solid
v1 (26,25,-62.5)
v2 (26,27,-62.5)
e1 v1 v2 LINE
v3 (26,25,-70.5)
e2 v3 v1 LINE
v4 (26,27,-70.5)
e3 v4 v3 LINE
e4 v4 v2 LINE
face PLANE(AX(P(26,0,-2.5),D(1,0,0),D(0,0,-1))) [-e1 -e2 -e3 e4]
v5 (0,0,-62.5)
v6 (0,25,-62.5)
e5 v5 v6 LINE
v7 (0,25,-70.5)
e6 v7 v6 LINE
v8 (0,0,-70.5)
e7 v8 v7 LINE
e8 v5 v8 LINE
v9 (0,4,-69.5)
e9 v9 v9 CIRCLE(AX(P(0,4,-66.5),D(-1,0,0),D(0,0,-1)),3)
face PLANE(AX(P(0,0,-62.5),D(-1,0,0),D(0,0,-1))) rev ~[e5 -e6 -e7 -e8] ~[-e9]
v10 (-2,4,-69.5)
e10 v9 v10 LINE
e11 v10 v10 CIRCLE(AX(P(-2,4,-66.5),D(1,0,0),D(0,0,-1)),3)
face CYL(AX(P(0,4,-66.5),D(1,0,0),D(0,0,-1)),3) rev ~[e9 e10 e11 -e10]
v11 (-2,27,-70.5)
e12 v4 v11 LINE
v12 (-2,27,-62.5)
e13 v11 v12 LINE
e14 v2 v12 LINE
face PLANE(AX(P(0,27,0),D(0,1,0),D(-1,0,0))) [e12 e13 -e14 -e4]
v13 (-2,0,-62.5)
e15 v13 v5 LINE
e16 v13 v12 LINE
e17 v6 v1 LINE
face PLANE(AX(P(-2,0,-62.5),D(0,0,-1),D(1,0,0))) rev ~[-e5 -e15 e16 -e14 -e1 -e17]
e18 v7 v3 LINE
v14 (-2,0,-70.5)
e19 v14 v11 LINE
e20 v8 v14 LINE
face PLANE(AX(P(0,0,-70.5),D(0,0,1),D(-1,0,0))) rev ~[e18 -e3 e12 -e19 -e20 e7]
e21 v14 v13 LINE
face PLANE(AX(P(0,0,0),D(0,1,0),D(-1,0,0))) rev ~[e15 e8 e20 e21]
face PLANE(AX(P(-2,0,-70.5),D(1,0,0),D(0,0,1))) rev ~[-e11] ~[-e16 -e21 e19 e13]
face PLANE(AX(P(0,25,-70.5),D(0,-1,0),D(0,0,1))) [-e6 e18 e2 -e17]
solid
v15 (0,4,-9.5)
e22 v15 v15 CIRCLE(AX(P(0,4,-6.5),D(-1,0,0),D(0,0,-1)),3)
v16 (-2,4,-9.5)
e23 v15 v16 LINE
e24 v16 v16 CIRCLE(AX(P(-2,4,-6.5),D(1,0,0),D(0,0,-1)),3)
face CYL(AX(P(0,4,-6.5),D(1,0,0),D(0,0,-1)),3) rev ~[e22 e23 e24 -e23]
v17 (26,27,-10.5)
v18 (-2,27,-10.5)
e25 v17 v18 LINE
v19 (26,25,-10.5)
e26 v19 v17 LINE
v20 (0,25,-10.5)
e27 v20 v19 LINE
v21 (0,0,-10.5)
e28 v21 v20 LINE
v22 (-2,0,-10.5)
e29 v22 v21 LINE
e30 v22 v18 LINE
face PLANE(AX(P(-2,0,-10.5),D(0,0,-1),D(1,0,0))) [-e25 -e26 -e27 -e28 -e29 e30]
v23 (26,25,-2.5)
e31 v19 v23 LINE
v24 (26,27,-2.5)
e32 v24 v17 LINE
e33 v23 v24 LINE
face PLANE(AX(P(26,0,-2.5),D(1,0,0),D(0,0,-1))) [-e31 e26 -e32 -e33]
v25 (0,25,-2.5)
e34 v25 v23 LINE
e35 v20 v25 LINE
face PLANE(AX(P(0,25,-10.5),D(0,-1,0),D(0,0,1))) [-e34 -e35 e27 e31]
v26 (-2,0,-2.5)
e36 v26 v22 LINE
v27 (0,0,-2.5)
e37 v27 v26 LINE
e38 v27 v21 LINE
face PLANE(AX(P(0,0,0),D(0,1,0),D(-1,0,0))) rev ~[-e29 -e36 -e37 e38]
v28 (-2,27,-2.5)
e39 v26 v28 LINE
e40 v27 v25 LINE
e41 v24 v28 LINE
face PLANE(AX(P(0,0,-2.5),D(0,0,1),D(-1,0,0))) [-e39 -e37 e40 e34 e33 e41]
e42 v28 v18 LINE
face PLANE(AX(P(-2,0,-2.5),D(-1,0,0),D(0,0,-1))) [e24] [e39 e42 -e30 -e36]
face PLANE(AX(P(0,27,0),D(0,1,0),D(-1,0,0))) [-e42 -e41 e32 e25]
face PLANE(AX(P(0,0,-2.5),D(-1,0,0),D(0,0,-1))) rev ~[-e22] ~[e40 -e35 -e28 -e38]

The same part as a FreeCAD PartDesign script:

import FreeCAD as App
import Part
import Sketcher


def add_polygon(sketch, points):
    """Adds a closed chain of lines whose ends are joined by coincident constraints."""
    first, n = sketch.GeometryCount, len(points)
    for a, b in zip(points, points[1:] + points[:1]):
        sketch.addGeometry(Part.LineSegment(App.Vector(*a, 0), App.Vector(*b, 0)), False)
    for i in range(n):
        sketch.addConstraint(Sketcher.Constraint("Coincident", first + i, 2, first + (i + 1) % n, 1))

doc = App.newDocument("Part")
params = doc.addObject("Spreadsheet::Sheet", "Params")
for row, (alias, value) in enumerate([
    ("sketch1_width", "2 mm"),
    ("sketch1_height", "8 mm"),
    ("pad1_length", "27 mm"),
    ("sketch2_width", "2 mm"),
    ("sketch2_height", "8 mm"),
    ("pad2_length", "26 mm"),
    ("sketch3_diameter", "6 mm"),
    ("pocket1_length", "2 mm"),
], start=1):
    params.set(f"A{row}", alias)
    params.set(f"B{row}", "=" + value)
    params.setAlias(f"B{row}", alias)

body = doc.addObject("PartDesign::Body", "Body")
body.AllowCompound = True

sketch1 = body.newObject("Sketcher::SketchObject", "Sketch")
sketch1.AttachmentSupport = (doc.getObject("XZ_Plane"), [""])
sketch1.MapMode = "FlatFace"
add_polygon(sketch1, [(-2, -2.5), (0, -2.5), (0, -10.5), (-2, -10.5)])
add_polygon(sketch1, [(-2, -62.5), (0, -62.5), (0, -70.5), (-2, -70.5)])
sketch1.addConstraint([
    Sketcher.Constraint("Horizontal", 0),
    Sketcher.Constraint("Vertical", 1),
    Sketcher.Constraint("Horizontal", 2),
    Sketcher.Constraint("Vertical", 3),
    Sketcher.Constraint("Horizontal", 4),
    Sketcher.Constraint("Vertical", 5),
    Sketcher.Constraint("Horizontal", 6),
    Sketcher.Constraint("Vertical", 7),
    Sketcher.Constraint("PointOnObject", 0, 2, -2),
    Sketcher.Constraint("PointOnObject", 4, 2, -2),
    Sketcher.Constraint("Vertical", 3, 2, 6, 2),
    Sketcher.Constraint("Equal", 3, 5),
    Sketcher.Constraint("DistanceX", 0, 1, 0, 2, 2.0),
    Sketcher.Constraint("DistanceY", 1, 2, 1, 1, 8.0),
    Sketcher.Constraint("DistanceY", 0, 2, -1, 1, 2.5),
    Sketcher.Constraint("DistanceY", 4, 2, 1, 2, 52.0),
])
sketch1.setExpression("Constraints[20]", "Params.sketch1_width")
sketch1.setExpression("Constraints[21]", "Params.sketch1_height")
pad1 = body.newObject("PartDesign::Pad", "Pad")
pad1.Profile = sketch1
pad1.setExpression("Length", "Params.pad1_length")
pad1.Reversed = True

sketch2 = body.newObject("Sketcher::SketchObject", "Sketch001")
sketch2.AttachmentSupport = (doc.getObject("YZ_Plane"), [""])
sketch2.MapMode = "FlatFace"
add_polygon(sketch2, [(27, -10.5), (27, -2.5), (25, -2.5), (25, -10.5)])
add_polygon(sketch2, [(25, -70.5), (27, -70.5), (27, -62.5), (25, -62.5)])
sketch2.addConstraint([
    Sketcher.Constraint("Vertical", 0),
    Sketcher.Constraint("Horizontal", 1),
    Sketcher.Constraint("Vertical", 2),
    Sketcher.Constraint("Horizontal", 3),
    Sketcher.Constraint("Horizontal", 4),
    Sketcher.Constraint("Vertical", 5),
    Sketcher.Constraint("Horizontal", 6),
    Sketcher.Constraint("Vertical", 7),
    Sketcher.Constraint("Vertical", 3, 2, 4, 2),
    Sketcher.Constraint("Vertical", 2, 2, 6, 2),
    Sketcher.Constraint("Equal", 2, 5),
    Sketcher.Constraint("DistanceX", 1, 2, 1, 1, 2.0),
    Sketcher.Constraint("DistanceY", 0, 1, 0, 2, 8.0),
    Sketcher.Constraint("DistanceX", -1, 1, 0, 2, 27.0),
    Sketcher.Constraint("DistanceY", 4, 2, 3, 2, 60.0),
    Sketcher.Constraint("DistanceY", 0, 2, -1, 1, 2.5),
])
sketch2.setExpression("Constraints[19]", "Params.sketch2_width")
sketch2.setExpression("Constraints[20]", "Params.sketch2_height")
pad2 = body.newObject("PartDesign::Pad", "Pad001")
pad2.Profile = sketch2
pad2.setExpression("Length", "Params.pad2_length")

sketch3 = body.newObject("Sketcher::SketchObject", "Sketch002")
sketch3.AttachmentSupport = (doc.getObject("YZ_Plane"), [""])
sketch3.MapMode = "FlatFace"
sketch3.addGeometry([
    Part.Circle(App.Vector(4, -6.5, 0), App.Vector(0, 0, 1), 3),
    Part.Circle(App.Vector(4, -66.5, 0), App.Vector(0, 0, 1), 3),
], False)
sketch3.addConstraint([
    Sketcher.Constraint("Equal", 0, 1),
    Sketcher.Constraint("Vertical", 0, 3, 1, 3),
    Sketcher.Constraint("Diameter", 0, 6.0),
    Sketcher.Constraint("DistanceX", -1, 1, 0, 3, 4.0),
    Sketcher.Constraint("DistanceY", 1, 3, 0, 3, 60.0),
    Sketcher.Constraint("DistanceY", 0, 3, -1, 1, 6.5),
])
sketch3.setExpression("Constraints[2]", "Params.sketch3_diameter")
pocket1 = body.newObject("PartDesign::Pocket", "Pocket")
pocket1.Profile = sketch3
pocket1.setExpression("Length", "Params.pocket1_length")

doc.recompute()
